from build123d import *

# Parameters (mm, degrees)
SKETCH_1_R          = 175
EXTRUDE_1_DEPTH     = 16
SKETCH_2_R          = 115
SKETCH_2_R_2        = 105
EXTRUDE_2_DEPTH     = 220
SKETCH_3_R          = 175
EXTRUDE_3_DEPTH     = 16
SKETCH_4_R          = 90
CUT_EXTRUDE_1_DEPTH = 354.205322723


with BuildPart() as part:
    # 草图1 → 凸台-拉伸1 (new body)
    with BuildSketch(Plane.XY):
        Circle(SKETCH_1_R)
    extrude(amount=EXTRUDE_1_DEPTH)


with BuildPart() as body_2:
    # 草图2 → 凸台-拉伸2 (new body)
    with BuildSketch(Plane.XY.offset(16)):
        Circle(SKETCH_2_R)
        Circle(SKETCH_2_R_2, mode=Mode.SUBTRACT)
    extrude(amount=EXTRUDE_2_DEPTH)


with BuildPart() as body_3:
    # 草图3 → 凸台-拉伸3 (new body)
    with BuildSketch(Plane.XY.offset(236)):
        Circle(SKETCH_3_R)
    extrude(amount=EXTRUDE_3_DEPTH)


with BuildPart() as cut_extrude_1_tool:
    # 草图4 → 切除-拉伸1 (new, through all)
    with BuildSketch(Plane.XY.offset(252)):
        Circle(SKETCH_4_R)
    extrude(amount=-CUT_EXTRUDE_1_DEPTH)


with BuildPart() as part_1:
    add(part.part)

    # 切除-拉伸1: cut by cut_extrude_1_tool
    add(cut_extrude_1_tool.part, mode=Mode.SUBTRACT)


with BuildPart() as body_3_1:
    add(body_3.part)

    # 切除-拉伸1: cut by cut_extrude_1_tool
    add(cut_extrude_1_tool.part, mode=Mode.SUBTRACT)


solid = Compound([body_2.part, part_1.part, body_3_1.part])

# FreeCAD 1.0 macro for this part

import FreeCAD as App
import Part
import Sketcher

V = App.Vector
Q = App.Units.Quantity

doc = App.newDocument("Part")
body = doc.addObject("PartDesign::Body", "Body")

# Sketch on XY plane
sketch1 = body.newObject("Sketcher::SketchObject", "Sketch")
sketch1.AttachmentSupport = (doc.getObject("XY_Plane"), [""])
sketch1.MapMode = "FlatFace"
sketch1.addGeometry(Part.Circle(V(0, 0, 0), V(0, 0, 1), 175), False)
sketch1.addConstraint([
    Sketcher.Constraint("Coincident", 0, 3, -1, 1),
    Sketcher.Constraint("Diameter", 0, Q("350 mm")),
])
pad1 = body.newObject("PartDesign::Pad", "Pad")
pad1.Profile = sketch1
pad1.Length = 16
body2 = doc.addObject("PartDesign::Body", "Body001")

# Sketch on XY plane
sketch2 = body2.newObject("Sketcher::SketchObject", "Sketch001")
sketch2.AttachmentSupport = (doc.getObject("XY_Plane001"), [""])
sketch2.MapMode = "FlatFace"
sketch2.AttachmentOffset = App.Placement(V(0, 0, 16), App.Rotation())
sketch2.addGeometry([
    Part.Circle(V(0, 0, 0), V(0, 0, 1), 115),
    Part.Circle(V(0, 0, 0), V(0, 0, 1), 105),
], False)
sketch2.addConstraint([
    Sketcher.Constraint("Coincident", 0, 3, -1, 1),
    Sketcher.Constraint("Coincident", 1, 3, -1, 1),
    Sketcher.Constraint("Diameter", 0, Q("230 mm")),
    Sketcher.Constraint("Diameter", 1, Q("210 mm")),
])
pad2 = body2.newObject("PartDesign::Pad", "Pad001")
pad2.Profile = sketch2
pad2.Length = 220
body3 = doc.addObject("PartDesign::Body", "Body002")

# Sketch on XY plane
sketch3 = body3.newObject("Sketcher::SketchObject", "Sketch002")
sketch3.AttachmentSupport = (doc.getObject("XY_Plane002"), [""])
sketch3.MapMode = "FlatFace"
sketch3.AttachmentOffset = App.Placement(V(0, 0, 236), App.Rotation())
sketch3.addGeometry(Part.Circle(V(0, 0, 0), V(0, 0, 1), 175), False)
sketch3.addConstraint([
    Sketcher.Constraint("Coincident", 0, 3, -1, 1),
    Sketcher.Constraint("Diameter", 0, Q("350 mm")),
])
pad3 = body3.newObject("PartDesign::Pad", "Pad002")
pad3.Profile = sketch3
pad3.Length = 16
body4 = doc.addObject("PartDesign::Body", "Body003")

# Sketch on XY plane
sketch4 = body4.newObject("Sketcher::SketchObject", "Sketch003")
sketch4.AttachmentSupport = (doc.getObject("XY_Plane003"), [""])
sketch4.MapMode = "FlatFace"
sketch4.AttachmentOffset = App.Placement(V(0, 0, 252), App.Rotation())
sketch4.addGeometry(Part.Circle(V(0, 0, 0), V(0, 0, 1), 90), False)
sketch4.addConstraint([
    Sketcher.Constraint("Coincident", 0, 3, -1, 1),
    Sketcher.Constraint("Diameter", 0, Q("180 mm")),
])
pad4 = body4.newObject("PartDesign::Pad", "Pad003")
pad4.Profile = sketch4
pad4.Length = 354.205323
pad4.Reversed = True
doc.recompute()

body5 = doc.addObject("PartDesign::Body", "Body004")
body5.BaseFeature = body4
boolean = body.newObject("PartDesign::Boolean", "Boolean")
boolean.Type = "Cut"
boolean.addObjects([body5])
doc.recompute()

boolean2 = body3.newObject("PartDesign::Boolean", "Boolean001")
boolean2.Type = "Cut"
boolean2.addObjects([body4])

doc.recompute()
